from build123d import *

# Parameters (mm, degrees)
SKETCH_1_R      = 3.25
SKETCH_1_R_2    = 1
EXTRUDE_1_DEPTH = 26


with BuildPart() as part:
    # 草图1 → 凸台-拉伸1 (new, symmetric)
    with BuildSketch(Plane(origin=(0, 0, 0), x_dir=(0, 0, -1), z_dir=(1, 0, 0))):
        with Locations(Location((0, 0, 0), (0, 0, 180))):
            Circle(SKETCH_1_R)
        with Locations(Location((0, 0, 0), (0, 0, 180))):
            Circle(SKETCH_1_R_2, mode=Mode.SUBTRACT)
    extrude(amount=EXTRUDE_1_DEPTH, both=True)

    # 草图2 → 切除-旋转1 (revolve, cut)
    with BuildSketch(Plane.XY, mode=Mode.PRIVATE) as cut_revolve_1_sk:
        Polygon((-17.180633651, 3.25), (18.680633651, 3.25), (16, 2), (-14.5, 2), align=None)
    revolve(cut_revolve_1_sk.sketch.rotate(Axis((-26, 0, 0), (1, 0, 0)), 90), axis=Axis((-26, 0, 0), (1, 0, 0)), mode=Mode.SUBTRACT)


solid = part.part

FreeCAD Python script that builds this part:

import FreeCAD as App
import Part
import Sketcher
Q = App.Units.Quantity


def add_polygon(sketch, points):
    """Adds a closed chain of lines whose ends are joined by coincident constraints."""
    first, n = sketch.GeometryCount, len(points)
    for a, b in zip(points, points[1:] + points[:1]):
        sketch.addGeometry(Part.LineSegment(App.Vector(*a, 0), App.Vector(*b, 0)), False)
    for i in range(n):
        sketch.addConstraint(Sketcher.Constraint("Coincident", first + i, 2, first + (i + 1) % n, 1))

doc = App.newDocument("Part")
body = doc.addObject("PartDesign::Body", "Body")

sketch1 = doc.addObject("Sketcher::SketchObject", "Sketch")
body.addObject(sketch1)
sketch1.AttachmentSupport = (doc.YZ_Plane, [""])
sketch1.MapMode = "FlatFace"
sketch1.addGeometry(Part.Circle(App.Vector(0, 0, 0), App.Vector(0, 0, 1), 3.25), False)
sketch1.addGeometry(Part.Circle(App.Vector(0, 0, 0), App.Vector(0, 0, 1), 1), False)
sketch1.addConstraint(Sketcher.Constraint("Coincident", 0, 3, -1, 1))
sketch1.addConstraint(Sketcher.Constraint("Coincident", 1, 3, -1, 1))
sketch1.addConstraint(Sketcher.Constraint("Diameter", 1, 2.0))
sketch1.addConstraint(Sketcher.Constraint("Diameter", 0, 6.5))
pad1 = doc.addObject("PartDesign::Pad", "Pad")
body.addObject(pad1)
pad1.Profile = sketch1
pad1.Length = 52
pad1.Midplane = True

sketch2 = doc.addObject("Sketcher::SketchObject", "Sketch001")
body.addObject(sketch2)
sketch2.AttachmentSupport = (doc.XY_Plane, [""])
sketch2.MapMode = "FlatFace"
add_polygon(sketch2, [(18.680634, 3.25), (-17.180634, 3.25), (-14.5, 2), (16, 2)])
sketch2.addConstraint(Sketcher.Constraint("Horizontal", 0))
sketch2.addConstraint(Sketcher.Constraint("Horizontal", 2))
sketch2.addConstraint(Sketcher.Constraint("Equal", 1, 3))
sketch2.addConstraint(Sketcher.Constraint("Angle", 1, Q("-25 deg")))
sketch2.addConstraint(Sketcher.Constraint("DistanceX", 2, 1, 2, 2, 30.5))
sketch2.addConstraint(Sketcher.Constraint("DistanceY", -1, 1, 1, 2, 2.0))
sketch2.addConstraint(Sketcher.Constraint("DistanceX", -1, 1, 2, 2, 16.0))
sketch2.addConstraint(Sketcher.Constraint("DistanceY", -1, 1, 0, 2, 3.25))
groove = doc.addObject("PartDesign::Groove", "Groove")
body.addObject(groove)
groove.Profile = sketch2
groove.ReferenceAxis = (sketch2, ["H_Axis"])
groove.Angle = 360

doc.recompute()
